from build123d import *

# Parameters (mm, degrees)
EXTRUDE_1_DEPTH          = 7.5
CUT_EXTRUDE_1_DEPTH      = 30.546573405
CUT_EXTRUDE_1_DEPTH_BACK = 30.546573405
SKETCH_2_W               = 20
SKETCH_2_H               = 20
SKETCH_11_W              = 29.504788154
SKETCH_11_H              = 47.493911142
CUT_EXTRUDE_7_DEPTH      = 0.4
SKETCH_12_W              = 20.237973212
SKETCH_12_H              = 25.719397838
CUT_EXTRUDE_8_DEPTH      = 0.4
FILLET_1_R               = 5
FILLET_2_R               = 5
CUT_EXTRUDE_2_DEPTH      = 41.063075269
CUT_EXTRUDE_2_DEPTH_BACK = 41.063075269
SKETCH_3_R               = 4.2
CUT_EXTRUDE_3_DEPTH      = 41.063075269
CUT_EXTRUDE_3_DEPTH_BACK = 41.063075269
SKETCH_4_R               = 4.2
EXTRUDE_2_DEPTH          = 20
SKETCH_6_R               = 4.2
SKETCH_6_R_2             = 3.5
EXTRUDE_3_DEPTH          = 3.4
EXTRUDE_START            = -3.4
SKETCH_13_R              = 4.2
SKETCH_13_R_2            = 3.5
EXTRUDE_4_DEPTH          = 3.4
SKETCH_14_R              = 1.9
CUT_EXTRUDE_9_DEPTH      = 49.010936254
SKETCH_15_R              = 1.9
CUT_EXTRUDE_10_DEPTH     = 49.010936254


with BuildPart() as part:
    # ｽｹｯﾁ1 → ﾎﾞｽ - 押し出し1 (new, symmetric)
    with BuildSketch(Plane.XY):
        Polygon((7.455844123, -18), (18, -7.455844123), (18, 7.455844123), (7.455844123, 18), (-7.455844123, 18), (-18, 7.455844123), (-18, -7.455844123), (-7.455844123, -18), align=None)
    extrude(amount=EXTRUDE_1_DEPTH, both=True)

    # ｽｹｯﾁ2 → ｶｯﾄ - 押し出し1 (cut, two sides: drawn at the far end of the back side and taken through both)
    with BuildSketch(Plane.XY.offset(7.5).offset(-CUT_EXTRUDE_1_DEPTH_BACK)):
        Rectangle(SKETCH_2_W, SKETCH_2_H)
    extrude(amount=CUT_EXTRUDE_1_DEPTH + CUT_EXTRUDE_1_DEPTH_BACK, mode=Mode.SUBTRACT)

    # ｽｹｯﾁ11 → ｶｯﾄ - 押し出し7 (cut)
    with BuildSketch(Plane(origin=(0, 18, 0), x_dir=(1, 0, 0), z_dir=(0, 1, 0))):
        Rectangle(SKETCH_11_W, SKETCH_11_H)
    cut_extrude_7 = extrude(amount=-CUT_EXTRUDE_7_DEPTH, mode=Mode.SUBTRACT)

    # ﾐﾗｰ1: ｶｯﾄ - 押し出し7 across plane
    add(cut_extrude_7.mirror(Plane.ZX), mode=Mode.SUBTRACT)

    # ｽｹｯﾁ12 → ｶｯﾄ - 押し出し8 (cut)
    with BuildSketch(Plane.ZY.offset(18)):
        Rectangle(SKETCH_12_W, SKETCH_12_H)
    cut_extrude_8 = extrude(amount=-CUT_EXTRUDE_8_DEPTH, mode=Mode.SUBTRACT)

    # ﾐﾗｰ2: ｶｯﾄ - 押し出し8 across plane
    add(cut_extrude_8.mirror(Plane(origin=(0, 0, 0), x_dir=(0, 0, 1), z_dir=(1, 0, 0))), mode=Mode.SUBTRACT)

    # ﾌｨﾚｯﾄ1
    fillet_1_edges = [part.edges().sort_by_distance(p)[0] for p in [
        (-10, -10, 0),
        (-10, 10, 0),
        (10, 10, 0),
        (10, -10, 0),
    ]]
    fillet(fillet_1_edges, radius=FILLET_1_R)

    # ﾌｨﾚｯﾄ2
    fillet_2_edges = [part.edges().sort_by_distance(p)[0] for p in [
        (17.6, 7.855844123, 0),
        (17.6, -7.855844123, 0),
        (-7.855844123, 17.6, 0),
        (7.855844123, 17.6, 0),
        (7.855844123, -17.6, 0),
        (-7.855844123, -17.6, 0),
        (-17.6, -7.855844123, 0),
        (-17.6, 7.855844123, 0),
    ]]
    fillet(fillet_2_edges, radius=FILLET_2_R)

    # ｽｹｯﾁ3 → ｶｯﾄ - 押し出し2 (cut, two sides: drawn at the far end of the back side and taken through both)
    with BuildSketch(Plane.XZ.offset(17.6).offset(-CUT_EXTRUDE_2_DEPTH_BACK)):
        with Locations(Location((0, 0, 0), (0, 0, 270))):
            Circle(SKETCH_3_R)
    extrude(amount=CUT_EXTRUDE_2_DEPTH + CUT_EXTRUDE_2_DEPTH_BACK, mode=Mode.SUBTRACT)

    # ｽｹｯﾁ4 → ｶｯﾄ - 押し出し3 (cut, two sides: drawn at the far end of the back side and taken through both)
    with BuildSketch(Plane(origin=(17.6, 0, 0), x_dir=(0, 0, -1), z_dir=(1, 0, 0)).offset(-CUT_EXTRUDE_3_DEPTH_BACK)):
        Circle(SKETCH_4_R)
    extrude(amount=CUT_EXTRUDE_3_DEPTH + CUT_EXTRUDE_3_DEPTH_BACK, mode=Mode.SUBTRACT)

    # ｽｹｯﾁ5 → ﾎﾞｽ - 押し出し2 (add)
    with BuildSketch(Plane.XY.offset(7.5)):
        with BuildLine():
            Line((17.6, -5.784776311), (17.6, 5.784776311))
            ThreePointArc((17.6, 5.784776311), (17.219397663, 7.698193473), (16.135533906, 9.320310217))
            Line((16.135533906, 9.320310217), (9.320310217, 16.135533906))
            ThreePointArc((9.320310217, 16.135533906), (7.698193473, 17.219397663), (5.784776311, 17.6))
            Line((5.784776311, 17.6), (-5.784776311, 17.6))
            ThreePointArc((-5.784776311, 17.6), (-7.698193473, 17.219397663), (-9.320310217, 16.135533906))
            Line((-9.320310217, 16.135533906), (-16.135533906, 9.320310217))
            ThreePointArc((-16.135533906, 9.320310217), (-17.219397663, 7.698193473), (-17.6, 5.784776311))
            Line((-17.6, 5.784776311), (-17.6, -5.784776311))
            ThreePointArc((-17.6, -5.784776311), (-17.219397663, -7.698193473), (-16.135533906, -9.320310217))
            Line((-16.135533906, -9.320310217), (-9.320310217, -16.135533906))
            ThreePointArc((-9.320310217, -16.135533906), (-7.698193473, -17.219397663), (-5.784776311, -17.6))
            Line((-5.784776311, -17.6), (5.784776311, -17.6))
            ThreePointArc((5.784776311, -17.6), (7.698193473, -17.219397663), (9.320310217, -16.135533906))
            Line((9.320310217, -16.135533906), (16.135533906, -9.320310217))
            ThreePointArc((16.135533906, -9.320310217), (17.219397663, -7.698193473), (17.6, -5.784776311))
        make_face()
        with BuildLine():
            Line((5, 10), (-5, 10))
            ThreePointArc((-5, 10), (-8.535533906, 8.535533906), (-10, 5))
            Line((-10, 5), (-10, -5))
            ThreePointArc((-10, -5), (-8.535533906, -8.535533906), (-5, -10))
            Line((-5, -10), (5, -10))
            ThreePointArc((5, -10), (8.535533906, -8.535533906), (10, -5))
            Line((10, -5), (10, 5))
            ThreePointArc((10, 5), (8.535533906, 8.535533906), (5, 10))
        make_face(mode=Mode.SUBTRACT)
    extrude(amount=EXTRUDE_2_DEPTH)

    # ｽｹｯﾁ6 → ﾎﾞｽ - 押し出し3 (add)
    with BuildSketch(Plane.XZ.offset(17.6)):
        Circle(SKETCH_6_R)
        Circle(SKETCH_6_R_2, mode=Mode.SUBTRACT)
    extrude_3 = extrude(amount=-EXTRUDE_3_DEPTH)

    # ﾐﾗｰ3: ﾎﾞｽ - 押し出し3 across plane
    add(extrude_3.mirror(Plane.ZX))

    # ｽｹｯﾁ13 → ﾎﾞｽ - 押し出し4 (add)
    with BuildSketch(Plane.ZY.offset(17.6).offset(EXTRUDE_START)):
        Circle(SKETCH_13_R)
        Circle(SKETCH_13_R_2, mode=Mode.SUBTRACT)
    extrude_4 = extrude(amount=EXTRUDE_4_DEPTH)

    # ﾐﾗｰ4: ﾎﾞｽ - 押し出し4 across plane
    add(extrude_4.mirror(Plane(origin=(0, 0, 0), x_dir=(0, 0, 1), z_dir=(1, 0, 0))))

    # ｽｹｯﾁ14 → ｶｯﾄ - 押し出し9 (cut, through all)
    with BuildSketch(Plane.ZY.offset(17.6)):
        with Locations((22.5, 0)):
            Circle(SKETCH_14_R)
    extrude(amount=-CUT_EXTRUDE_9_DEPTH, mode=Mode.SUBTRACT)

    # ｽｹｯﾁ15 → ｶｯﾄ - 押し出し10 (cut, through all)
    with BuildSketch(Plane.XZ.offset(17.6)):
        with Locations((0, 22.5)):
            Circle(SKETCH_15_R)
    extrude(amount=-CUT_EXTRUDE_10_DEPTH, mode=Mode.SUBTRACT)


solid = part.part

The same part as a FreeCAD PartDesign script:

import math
import FreeCAD as App
import Part
import Sketcher

V = App.Vector


def edges_at(feature, points):
    """Names of the edges that pass closest to the given points."""
    edges = feature.Shape.Edges
    near = lambda p: min(range(len(edges)), key=lambda i: edges[i].distToShape(Part.Vertex(*p))[0])
    return sorted({f"Edge{near(p) + 1}" for p in points})

doc = App.newDocument("Part")
body = doc.addObject("PartDesign::Body", "Body")

sketch1 = body.newObject("Sketcher::SketchObject", "Sketch")
sketch1.AttachmentSupport = (doc.getObject("XY_Plane"), [""])
sketch1.MapMode = "FlatFace"
sketch1.addGeometry([
    Part.LineSegment(V(7.455844, -18, 0), V(18, -7.455844, 0)),
    Part.LineSegment(V(18, -7.455844, 0), V(18, 7.455844, 0)),
    Part.LineSegment(V(18, 7.455844, 0), V(7.455844, 18, 0)),
    Part.LineSegment(V(7.455844, 18, 0), V(-7.455844, 18, 0)),
    Part.LineSegment(V(-7.455844, 18, 0), V(-18, 7.455844, 0)),
    Part.LineSegment(V(-18, 7.455844, 0), V(-18, -7.455844, 0)),
    Part.LineSegment(V(-18, -7.455844, 0), V(-7.455844, -18, 0)),
    Part.LineSegment(V(-7.455844, -18, 0), V(7.455844, -18, 0)),
], False)
sketch1.addConstraint([
    Sketcher.Constraint("Coincident", 0, 2, 1, 1),
    Sketcher.Constraint("Coincident", 1, 2, 2, 1),
    Sketcher.Constraint("Coincident", 2, 2, 3, 1),
    Sketcher.Constraint("Coincident", 3, 2, 4, 1),
    Sketcher.Constraint("Coincident", 4, 2, 5, 1),
    Sketcher.Constraint("Coincident", 5, 2, 6, 1),
    Sketcher.Constraint("Coincident", 6, 2, 7, 1),
    Sketcher.Constraint("Coincident", 7, 2, 0, 1),
    Sketcher.Constraint("Vertical", 1),
    Sketcher.Constraint("Horizontal", 3),
    Sketcher.Constraint("Vertical", 5),
    Sketcher.Constraint("Horizontal", 7),
    Sketcher.Constraint("Symmetric", 0, 2, 4, 2, -1, 1),
    Sketcher.Constraint("Symmetric", 2, 2, 6, 2, -1, 1),
    Sketcher.Constraint("Perpendicular", 0, 2),
    Sketcher.Constraint("Perpendicular", 2, 4),
    Sketcher.Constraint("Perpendicular", 4, 6),
    Sketcher.Constraint("Horizontal", 1, 2, 4, 2),
    Sketcher.Constraint("Vertical", 3, 2, 6, 2),
    Sketcher.Constraint("Equal", 7, 1),
    Sketcher.Constraint("DistanceX", -1, 1, 0, 2, 18.0),
    Sketcher.Constraint("DistanceX", 3, 2, 3, 1, 14.911688),
])
pad1 = body.newObject("PartDesign::Pad", "Pad")
pad1.Profile = sketch1
pad1.Length = 15
pad1.Midplane = True

sketch2 = body.newObject("Sketcher::SketchObject", "Sketch001")
sketch2.AttachmentSupport = (doc.getObject("XY_Plane"), [""])
sketch2.MapMode = "FlatFace"
sketch2.AttachmentOffset = App.Placement(V(0, 0, 7.5), App.Rotation())
sketch2.addGeometry([
    Part.LineSegment(V(-10, 10, 0), V(-10, -10, 0)),
    Part.LineSegment(V(-10, -10, 0), V(10, -10, 0)),
    Part.LineSegment(V(10, -10, 0), V(10, 10, 0)),
    Part.LineSegment(V(10, 10, 0), V(-10, 10, 0)),
], False)
sketch2.addConstraint([
    Sketcher.Constraint("Coincident", 0, 2, 1, 1),
    Sketcher.Constraint("Coincident", 1, 2, 2, 1),
    Sketcher.Constraint("Coincident", 2, 2, 3, 1),
    Sketcher.Constraint("Coincident", 3, 2, 0, 1),
    Sketcher.Constraint("Vertical", 0),
    Sketcher.Constraint("Horizontal", 1),
    Sketcher.Constraint("Vertical", 2),
    Sketcher.Constraint("Horizontal", 3),
    Sketcher.Constraint("Symmetric", 0, 2, 2, 2, -1, 1),
    Sketcher.Constraint("Equal", 3, 0),
    Sketcher.Constraint("DistanceX", 1, 1, 1, 2, 20.0),
])
pocket1 = body.newObject("PartDesign::Pocket", "Pocket")
pocket1.Profile = sketch2
pocket1.Type = "ThroughAll"
pocket1.Midplane = True

sketch3 = body.newObject("Sketcher::SketchObject", "Sketch002")
sketch3.AttachmentSupport = (doc.getObject("XZ_Plane"), [""])
sketch3.MapMode = "FlatFace"
sketch3.AttachmentOffset = App.Placement(V(0, 0, -18), App.Rotation())
sketch3.addGeometry([
    Part.LineSegment(V(-14.752394, -23.746956, 0), V(-14.752394, 23.746956, 0)),
    Part.LineSegment(V(-14.752394, 23.746956, 0), V(14.752394, 23.746956, 0)),
    Part.LineSegment(V(14.752394, 23.746956, 0), V(14.752394, -23.746956, 0)),
    Part.LineSegment(V(14.752394, -23.746956, 0), V(-14.752394, -23.746956, 0)),
], False)
sketch3.addConstraint([
    Sketcher.Constraint("Coincident", 0, 2, 1, 1),
    Sketcher.Constraint("Coincident", 1, 2, 2, 1),
    Sketcher.Constraint("Coincident", 2, 2, 3, 1),
    Sketcher.Constraint("Coincident", 3, 2, 0, 1),
    Sketcher.Constraint("Vertical", 0),
    Sketcher.Constraint("Horizontal", 1),
    Sketcher.Constraint("Vertical", 2),
    Sketcher.Constraint("Horizontal", 3),
    Sketcher.Constraint("Symmetric", 0, 2, 2, 2, -1, 1),
    Sketcher.Constraint("DistanceX", 1, 1, 1, 2, 29.504788),
    Sketcher.Constraint("DistanceY", 0, 1, 0, 2, 47.493911),
])
pocket2 = body.newObject("PartDesign::Pocket", "Pocket001")
pocket2.Profile = sketch3
pocket2.Length = 0.4
pocket2.Reversed = True
doc.recompute()

mirrored = body.newObject("PartDesign::Mirrored", "Mirrored")
mirrored.Originals = [pocket2]
mirrored.MirrorPlane = (doc.getObject("XZ_Plane"), [""])
body.Tip = mirrored

sketch4 = body.newObject("Sketcher::SketchObject", "Sketch003")
sketch4.AttachmentSupport = (doc.getObject("YZ_Plane"), [""])
sketch4.MapMode = "FlatFace"
sketch4.AttachmentOffset = App.Placement(V(0, 0, -18), App.Rotation())
sketch4.addGeometry([
    Part.LineSegment(V(12.859699, -10.118987, 0), V(-12.859699, -10.118987, 0)),
    Part.LineSegment(V(-12.859699, -10.118987, 0), V(-12.859699, 10.118987, 0)),
    Part.LineSegment(V(-12.859699, 10.118987, 0), V(12.859699, 10.118987, 0)),
    Part.LineSegment(V(12.859699, 10.118987, 0), V(12.859699, -10.118987, 0)),
], False)
sketch4.addConstraint([
    Sketcher.Constraint("Coincident", 0, 2, 1, 1),
    Sketcher.Constraint("Coincident", 1, 2, 2, 1),
    Sketcher.Constraint("Coincident", 2, 2, 3, 1),
    Sketcher.Constraint("Coincident", 3, 2, 0, 1),
    Sketcher.Constraint("Horizontal", 0),
    Sketcher.Constraint("Vertical", 1),
    Sketcher.Constraint("Horizontal", 2),
    Sketcher.Constraint("Vertical", 3),
    Sketcher.Constraint("Symmetric", 0, 2, 2, 2, -1, 1),
    Sketcher.Constraint("DistanceX", 0, 2, -1, 1, 12.859699),
    Sketcher.Constraint("DistanceY", 1, 1, 1, 2, 20.237973),
])
pocket3 = body.newObject("PartDesign::Pocket", "Pocket002")
pocket3.Profile = sketch4
pocket3.Length = 0.4
pocket3.Reversed = True
doc.recompute()

mirrored2 = body.newObject("PartDesign::Mirrored", "Mirrored001")
mirrored2.Originals = [pocket3]
mirrored2.MirrorPlane = (doc.getObject("YZ_Plane"), [""])
body.Tip = mirrored2
doc.recompute()

fillet = body.newObject("PartDesign::Fillet", "Fillet")
fillet.Base = (mirrored2, edges_at(mirrored2, [
    (-10, -10, 0),
    (-10, 10, 0),
    (10, 10, 0),
    (10, -10, 0),
]))
fillet.Radius = 5
doc.recompute()

fillet2 = body.newObject("PartDesign::Fillet", "Fillet001")
fillet2.Base = (fillet, edges_at(fillet, [
    (17.6, 7.856, 0),
    (17.6, -7.856, 0),
    (-7.856, 17.6, 0),
    (7.856, 17.6, 0),
    (7.856, -17.6, 0),
    (-7.856, -17.6, 0),
    (-17.6, -7.856, 0),
    (-17.6, 7.856, 0),
]))
fillet2.Radius = 5

sketch5 = body.newObject("Sketcher::SketchObject", "Sketch004")
sketch5.AttachmentSupport = (doc.getObject("XZ_Plane"), [""])
sketch5.MapMode = "FlatFace"
sketch5.AttachmentOffset = App.Placement(V(0, 0, 17.6), App.Rotation())
sketch5.addGeometry(Part.Circle(V(0, 0, 0), V(0, 0, 1), 4.2), False)
sketch5.addConstraint([
    Sketcher.Constraint("Coincident", 0, 3, -1, 1),
    Sketcher.Constraint("Diameter", 0, 8.4),
])
pocket4 = body.newObject("PartDesign::Pocket", "Pocket003")
pocket4.Profile = sketch5
pocket4.Type = "ThroughAll"
pocket4.Midplane = True

sketch6 = body.newObject("Sketcher::SketchObject", "Sketch005")
sketch6.AttachmentSupport = (doc.getObject("YZ_Plane"), [""])
sketch6.MapMode = "FlatFace"
sketch6.AttachmentOffset = App.Placement(V(0, 0, 17.6), App.Rotation())
sketch6.addGeometry(Part.Circle(V(0, 0, 0), V(0, 0, 1), 4.2), False)
sketch6.addConstraint([
    Sketcher.Constraint("Coincident", 0, 3, -1, 1),
    Sketcher.Constraint("Diameter", 0, 8.4),
])
pocket5 = body.newObject("PartDesign::Pocket", "Pocket004")
pocket5.Profile = sketch6
pocket5.Type = "ThroughAll"
pocket5.Midplane = True

sketch7 = body.newObject("Sketcher::SketchObject", "Sketch006")
sketch7.AttachmentSupport = (doc.getObject("XY_Plane"), [""])
sketch7.MapMode = "FlatFace"
sketch7.AttachmentOffset = App.Placement(V(0, 0, 7.5), App.Rotation())
sketch7.addGeometry([
    Part.LineSegment(V(17.6, -5.784776, 0), V(17.6, 5.784776, 0)),
    Part.ArcOfCircle(Part.Circle(V(12.6, 5.784776, 0), V(0, 0, 1), 5), math.radians(0), math.radians(45)),
    Part.LineSegment(V(16.135534, 9.32031, 0), V(9.32031, 16.135534, 0)),
    Part.ArcOfCircle(Part.Circle(V(5.784776, 12.6, 0), V(0, 0, 1), 5), math.radians(45), math.radians(90)),
    Part.LineSegment(V(5.784776, 17.6, 0), V(-5.784776, 17.6, 0)),
    Part.ArcOfCircle(Part.Circle(V(-5.784776, 12.6, 0), V(0, 0, 1), 5), math.radians(90), math.radians(135)),
    Part.LineSegment(V(-9.32031, 16.135534, 0), V(-16.135534, 9.32031, 0)),
    Part.ArcOfCircle(Part.Circle(V(-12.6, 5.784776, 0), V(0, 0, 1), 5), math.radians(135), math.radians(180)),
    Part.LineSegment(V(-17.6, 5.784776, 0), V(-17.6, -5.784776, 0)),
    Part.ArcOfCircle(Part.Circle(V(-12.6, -5.784776, 0), V(0, 0, 1), 5), math.radians(180), math.radians(225)),
    Part.LineSegment(V(-16.135534, -9.32031, 0), V(-9.32031, -16.135534, 0)),
    Part.ArcOfCircle(Part.Circle(V(-5.784776, -12.6, 0), V(0, 0, 1), 5), math.radians(-135), math.radians(-90)),
    Part.LineSegment(V(-5.784776, -17.6, 0), V(5.784776, -17.6, 0)),
    Part.ArcOfCircle(Part.Circle(V(5.784776, -12.6, 0), V(0, 0, 1), 5), math.radians(-90), math.radians(-45)),
    Part.LineSegment(V(9.32031, -16.135534, 0), V(16.135534, -9.32031, 0)),
    Part.ArcOfCircle(Part.Circle(V(12.6, -5.784776, 0), V(0, 0, 1), 5), math.radians(-45), math.radians(0)),
    Part.LineSegment(V(-5, 10, 0), V(5, 10, 0)),
    Part.ArcOfCircle(Part.Circle(V(5, 5, 0), V(0, 0, 1), 5), math.radians(0), math.radians(90)),
    Part.LineSegment(V(10, 5, 0), V(10, -5, 0)),
    Part.ArcOfCircle(Part.Circle(V(5, -5, 0), V(0, 0, 1), 5), math.radians(-90), math.radians(0)),
    Part.LineSegment(V(5, -10, 0), V(-5, -10, 0)),
    Part.ArcOfCircle(Part.Circle(V(-5, -5, 0), V(0, 0, 1), 5), math.radians(180), math.radians(270)),
    Part.LineSegment(V(-10, -5, 0), V(-10, 5, 0)),
    Part.ArcOfCircle(Part.Circle(V(-5, 5, 0), V(0, 0, 1), 5), math.radians(90), math.radians(180)),
], False)
sketch7.addConstraint([
    Sketcher.Constraint("Tangent", 0, 2, 1, 1),
    Sketcher.Constraint("Tangent", 1, 2, 2, 1),
    Sketcher.Constraint("Tangent", 2, 2, 3, 1),
    Sketcher.Constraint("Tangent", 3, 2, 4, 1),
    Sketcher.Constraint("Tangent", 4, 2, 5, 1),
    Sketcher.Constraint("Tangent", 5, 2, 6, 1),
    Sketcher.Constraint("Tangent", 6, 2, 7, 1),
    Sketcher.Constraint("Tangent", 7, 2, 8, 1),
    Sketcher.Constraint("Tangent", 8, 2, 9, 1),
    Sketcher.Constraint("Tangent", 9, 2, 10, 1),
    Sketcher.Constraint("Tangent", 10, 2, 11, 1),
    Sketcher.Constraint("Tangent", 11, 2, 12, 1),
    Sketcher.Constraint("Tangent", 12, 2, 13, 1),
    Sketcher.Constraint("Tangent", 13, 2, 14, 1),
    Sketcher.Constraint("Tangent", 14, 2, 15, 1),
    Sketcher.Constraint("Tangent", 15, 2, 0, 1),
    Sketcher.Constraint("Tangent", 16, 2, 17, 2),
    Sketcher.Constraint("Tangent", 17, 1, 18, 1),
    Sketcher.Constraint("Tangent", 18, 2, 19, 2),
    Sketcher.Constraint("Tangent", 19, 1, 20, 1),
    Sketcher.Constraint("Tangent", 20, 2, 21, 2),
    Sketcher.Constraint("Tangent", 21, 1, 22, 1),
    Sketcher.Constraint("Tangent", 22, 2, 23, 2),
    Sketcher.Constraint("Tangent", 23, 1, 16, 1),
    Sketcher.Constraint("Vertical", 0),
    Sketcher.Constraint("Horizontal", 4),
    Sketcher.Constraint("Vertical", 8),
    Sketcher.Constraint("Horizontal", 12),
    Sketcher.Constraint("Horizontal", 16),
    Sketcher.Constraint("Vertical", 18),
    Sketcher.Constraint("Horizontal", 20),
    Sketcher.Constraint("Vertical", 22),
    Sketcher.Constraint("Equal", 1, 3),
    Sketcher.Constraint("Equal", 3, 5),
    Sketcher.Constraint("Equal", 5, 7),
    Sketcher.Constraint("Equal", 7, 9),
    Sketcher.Constraint("Equal", 9, 11),
    Sketcher.Constraint("Equal", 11, 13),
    Sketcher.Constraint("Equal", 13, 15),
    Sketcher.Constraint("Equal", 15, 17),
    Sketcher.Constraint("Equal", 17, 19),
    Sketcher.Constraint("Equal", 19, 21),
    Sketcher.Constraint("Equal", 21, 23),
    Sketcher.Constraint("Symmetric", 1, 3, 9, 3, -1, 1),
    Sketcher.Constraint("Symmetric", 3, 3, 11, 3, -1, 1),
    Sketcher.Constraint("Symmetric", 17, 3, 21, 3, -1, 1),
    Sketcher.Constraint("Symmetric", 5, 2, 13, 2, -1, 1),
    Sketcher.Constraint("Symmetric", 2, 2, 5, 2, -2),
    Sketcher.Constraint("Perpendicular", 2, 6),
    Sketcher.Constraint("Equal", 12, 0),
    Sketcher.Constraint("Equal", 20, 18),
    Sketcher.Constraint("Radius", 1, 5.0),
    Sketcher.Constraint("DistanceX", 16, 1, 16, 2, 10.0),
    Sketcher.Constraint("DistanceX", -1, 1, 1, 3, 12.6),
    Sketcher.Constraint("Distance", 2, 9.638182),
])
pad2 = body.newObject("PartDesign::Pad", "Pad001")
pad2.Profile = sketch7
pad2.Length = 20

sketch8 = body.newObject("Sketcher::SketchObject", "Sketch007")
sketch8.AttachmentSupport = (doc.getObject("XZ_Plane"), [""])
sketch8.MapMode = "FlatFace"
sketch8.AttachmentOffset = App.Placement(V(0, 0, 17.6), App.Rotation())
sketch8.addGeometry([
    Part.Circle(V(0, 0, 0), V(0, 0, 1), 4.2),
    Part.Circle(V(0, 0, 0), V(0, 0, 1), 3.5),
], False)
sketch8.addConstraint([
    Sketcher.Constraint("Coincident", 0, 3, -1, 1),
    Sketcher.Constraint("Coincident", 1, 3, -1, 1),
    Sketcher.Constraint("Diameter", 1, 7.0),
    Sketcher.Constraint("Diameter", 0, 8.4),
])
pad3 = body.newObject("PartDesign::Pad", "Pad002")
pad3.Profile = sketch8
pad3.Length = 3.4
pad3.Reversed = True
doc.recompute()

mirrored3 = body.newObject("PartDesign::Mirrored", "Mirrored002")
mirrored3.Originals = [pad3]
mirrored3.MirrorPlane = (doc.getObject("XZ_Plane"), [""])
body.Tip = mirrored3

sketch9 = body.newObject("Sketcher::SketchObject", "Sketch008")
sketch9.AttachmentSupport = (doc.getObject("YZ_Plane"), [""])
sketch9.MapMode = "FlatFace"
sketch9.AttachmentOffset = App.Placement(V(0, 0, -14.2), App.Rotation())
sketch9.addGeometry([
    Part.Circle(V(0, 0, 0), V(0, 0, 1), 4.2),
    Part.Circle(V(0, 0, 0), V(0, 0, 1), 3.5),
], False)
sketch9.addConstraint([
    Sketcher.Constraint("Coincident", 0, 3, -1, 1),
    Sketcher.Constraint("Coincident", 1, 3, -1, 1),
    Sketcher.Constraint("Diameter", 1, 7.0),
    Sketcher.Constraint("Diameter", 0, 8.4),
])
pad4 = body.newObject("PartDesign::Pad", "Pad003")
pad4.Profile = sketch9
pad4.Length = 3.4
pad4.Reversed = True
doc.recompute()

mirrored4 = body.newObject("PartDesign::Mirrored", "Mirrored003")
mirrored4.Originals = [pad4]
mirrored4.MirrorPlane = (doc.getObject("YZ_Plane"), [""])
body.Tip = mirrored4

sketch10 = body.newObject("Sketcher::SketchObject", "Sketch009")
sketch10.AttachmentSupport = (doc.getObject("YZ_Plane"), [""])
sketch10.MapMode = "FlatFace"
sketch10.AttachmentOffset = App.Placement(V(0, 0, -17.6), App.Rotation())
sketch10.addGeometry(Part.Circle(V(0, 22.5, 0), V(0, 0, 1), 1.9), False)
sketch10.addConstraint([
    Sketcher.Constraint("PointOnObject", 0, 3, -2),
    Sketcher.Constraint("Diameter", 0, 3.8),
    Sketcher.Constraint("DistanceY", -1, 1, 0, 3, 22.5),
])
pocket6 = body.newObject("PartDesign::Pocket", "Pocket005")
pocket6.Profile = sketch10
pocket6.Type = "ThroughAll"
pocket6.Reversed = True

sketch11 = body.newObject("Sketcher::SketchObject", "Sketch010")
sketch11.AttachmentSupport = (doc.getObject("XZ_Plane"), [""])
sketch11.MapMode = "FlatFace"
sketch11.AttachmentOffset = App.Placement(V(0, 0, 17.6), App.Rotation())
sketch11.addGeometry(Part.Circle(V(0, 22.5, 0), V(0, 0, 1), 1.9), False)
sketch11.addConstraint([
    Sketcher.Constraint("PointOnObject", 0, 3, -2),
    Sketcher.Constraint("Diameter", 0, 3.8),
    Sketcher.Constraint("DistanceY", -1, 1, 0, 3, 22.5),
])
pocket7 = body.newObject("PartDesign::Pocket", "Pocket006")
pocket7.Profile = sketch11
pocket7.Type = "ThroughAll"

doc.recompute()
